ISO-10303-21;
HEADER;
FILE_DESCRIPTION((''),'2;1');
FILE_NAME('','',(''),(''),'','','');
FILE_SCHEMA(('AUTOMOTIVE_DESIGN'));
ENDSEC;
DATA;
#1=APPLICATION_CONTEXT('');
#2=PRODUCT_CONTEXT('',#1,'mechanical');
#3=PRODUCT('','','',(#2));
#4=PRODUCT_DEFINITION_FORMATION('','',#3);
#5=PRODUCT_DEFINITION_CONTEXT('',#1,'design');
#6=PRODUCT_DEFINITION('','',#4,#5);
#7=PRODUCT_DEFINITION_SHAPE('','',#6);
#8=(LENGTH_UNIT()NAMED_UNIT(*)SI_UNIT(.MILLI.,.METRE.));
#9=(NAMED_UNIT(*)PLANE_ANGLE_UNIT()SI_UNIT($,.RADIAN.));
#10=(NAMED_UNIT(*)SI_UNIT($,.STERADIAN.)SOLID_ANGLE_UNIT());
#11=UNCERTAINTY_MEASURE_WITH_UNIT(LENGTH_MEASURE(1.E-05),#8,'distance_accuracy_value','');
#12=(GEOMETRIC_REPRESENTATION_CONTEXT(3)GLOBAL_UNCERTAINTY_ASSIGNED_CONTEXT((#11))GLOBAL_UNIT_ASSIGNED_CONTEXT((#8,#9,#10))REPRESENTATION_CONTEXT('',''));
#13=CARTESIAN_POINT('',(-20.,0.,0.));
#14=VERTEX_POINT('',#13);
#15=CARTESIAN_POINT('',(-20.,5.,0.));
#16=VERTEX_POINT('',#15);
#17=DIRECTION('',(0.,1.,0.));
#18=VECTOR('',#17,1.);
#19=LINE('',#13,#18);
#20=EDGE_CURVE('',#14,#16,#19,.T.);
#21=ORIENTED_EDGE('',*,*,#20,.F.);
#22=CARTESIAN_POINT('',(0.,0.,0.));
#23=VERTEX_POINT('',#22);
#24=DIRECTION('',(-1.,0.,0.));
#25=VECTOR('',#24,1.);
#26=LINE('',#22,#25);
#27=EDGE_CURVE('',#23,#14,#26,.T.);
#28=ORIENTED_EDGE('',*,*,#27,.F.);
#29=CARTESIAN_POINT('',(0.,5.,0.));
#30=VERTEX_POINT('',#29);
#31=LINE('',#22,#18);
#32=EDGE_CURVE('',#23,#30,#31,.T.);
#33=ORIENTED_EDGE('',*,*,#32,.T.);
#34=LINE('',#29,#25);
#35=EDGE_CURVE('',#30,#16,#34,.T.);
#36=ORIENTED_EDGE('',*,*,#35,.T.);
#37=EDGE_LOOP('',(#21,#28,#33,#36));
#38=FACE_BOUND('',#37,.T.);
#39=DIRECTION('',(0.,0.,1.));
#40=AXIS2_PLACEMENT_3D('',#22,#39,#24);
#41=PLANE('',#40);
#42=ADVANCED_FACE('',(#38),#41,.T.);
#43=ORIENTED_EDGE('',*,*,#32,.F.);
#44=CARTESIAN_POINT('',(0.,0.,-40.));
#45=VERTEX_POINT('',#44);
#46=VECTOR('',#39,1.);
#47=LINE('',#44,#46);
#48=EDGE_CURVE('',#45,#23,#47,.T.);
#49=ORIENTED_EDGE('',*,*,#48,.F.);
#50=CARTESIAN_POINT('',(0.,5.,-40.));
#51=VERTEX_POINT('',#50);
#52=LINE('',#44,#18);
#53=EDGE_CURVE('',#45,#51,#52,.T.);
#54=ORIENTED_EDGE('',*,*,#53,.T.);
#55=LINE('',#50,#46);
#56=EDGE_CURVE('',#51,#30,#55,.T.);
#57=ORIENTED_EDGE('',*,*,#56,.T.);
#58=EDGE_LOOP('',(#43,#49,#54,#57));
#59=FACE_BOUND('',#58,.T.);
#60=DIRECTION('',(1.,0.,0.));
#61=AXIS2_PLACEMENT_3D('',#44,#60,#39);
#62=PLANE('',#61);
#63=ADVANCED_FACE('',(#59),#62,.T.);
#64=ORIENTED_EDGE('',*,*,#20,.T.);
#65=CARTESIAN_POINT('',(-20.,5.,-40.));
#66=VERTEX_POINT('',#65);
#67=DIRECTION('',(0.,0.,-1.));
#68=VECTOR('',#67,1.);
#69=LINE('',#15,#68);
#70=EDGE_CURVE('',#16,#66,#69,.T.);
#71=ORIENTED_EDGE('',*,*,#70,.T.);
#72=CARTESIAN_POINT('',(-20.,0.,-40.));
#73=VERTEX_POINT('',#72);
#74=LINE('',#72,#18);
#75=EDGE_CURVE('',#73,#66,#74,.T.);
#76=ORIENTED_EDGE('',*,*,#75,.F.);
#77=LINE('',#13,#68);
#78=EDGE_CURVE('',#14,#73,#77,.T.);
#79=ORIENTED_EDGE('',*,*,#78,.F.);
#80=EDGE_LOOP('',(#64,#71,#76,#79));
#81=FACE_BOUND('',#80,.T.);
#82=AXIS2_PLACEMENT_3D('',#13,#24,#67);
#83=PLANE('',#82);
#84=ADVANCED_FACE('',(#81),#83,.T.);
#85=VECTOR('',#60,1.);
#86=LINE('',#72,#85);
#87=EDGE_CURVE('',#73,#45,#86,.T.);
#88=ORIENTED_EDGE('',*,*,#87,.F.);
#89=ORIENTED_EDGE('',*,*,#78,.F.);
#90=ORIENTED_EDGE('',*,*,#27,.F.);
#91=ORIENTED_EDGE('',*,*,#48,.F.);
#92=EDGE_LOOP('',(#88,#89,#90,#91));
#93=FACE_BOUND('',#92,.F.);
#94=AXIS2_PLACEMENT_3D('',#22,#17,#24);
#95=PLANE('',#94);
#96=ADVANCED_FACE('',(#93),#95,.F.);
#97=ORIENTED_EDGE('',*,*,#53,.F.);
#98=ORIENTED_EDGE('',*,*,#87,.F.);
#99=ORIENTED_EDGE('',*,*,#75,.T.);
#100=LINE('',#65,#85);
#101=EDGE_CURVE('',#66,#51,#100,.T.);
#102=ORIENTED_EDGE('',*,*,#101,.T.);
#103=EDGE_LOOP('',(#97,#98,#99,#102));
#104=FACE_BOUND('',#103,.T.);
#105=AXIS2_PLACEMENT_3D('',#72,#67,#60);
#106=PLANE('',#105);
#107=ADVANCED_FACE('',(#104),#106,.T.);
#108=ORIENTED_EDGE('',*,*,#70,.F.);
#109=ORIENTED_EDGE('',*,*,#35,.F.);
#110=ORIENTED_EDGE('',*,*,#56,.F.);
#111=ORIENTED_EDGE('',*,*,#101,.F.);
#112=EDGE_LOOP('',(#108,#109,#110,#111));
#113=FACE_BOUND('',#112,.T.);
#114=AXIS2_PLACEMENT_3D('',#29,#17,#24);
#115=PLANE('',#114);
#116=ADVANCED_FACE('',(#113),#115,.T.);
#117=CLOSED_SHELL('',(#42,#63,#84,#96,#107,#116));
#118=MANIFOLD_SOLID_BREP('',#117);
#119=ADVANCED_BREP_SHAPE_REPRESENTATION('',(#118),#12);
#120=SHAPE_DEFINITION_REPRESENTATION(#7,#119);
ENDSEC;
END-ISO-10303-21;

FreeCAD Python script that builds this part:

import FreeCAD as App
import Part
import Sketcher

V = App.Vector


def add_polygon(sketch, points):
    """Adds a closed chain of lines whose ends are joined by coincident constraints."""
    first, n = sketch.GeometryCount, len(points)
    for a, b in zip(points, points[1:] + points[:1]):
        sketch.addGeometry(Part.LineSegment(App.Vector(*a, 0), App.Vector(*b, 0)), False)
    for i in range(n):
        sketch.addConstraint(Sketcher.Constraint("Coincident", first + i, 2, first + (i + 1) % n, 1))

doc = App.newDocument("Part")
body = doc.addObject("PartDesign::Body", "Body")

sketch1 = body.newObject("Sketcher::SketchObject", "Sketch")
sketch1.AttachmentSupport = (doc.getObject("XZ_Plane"), [""])
sketch1.MapMode = "FlatFace"
add_polygon(sketch1, [(-20, 0), (0, 0), (0, -40), (-20, -40)])
sketch1.addConstraint(Sketcher.Constraint("Horizontal", 0))
sketch1.addConstraint(Sketcher.Constraint("Vertical", 1))
sketch1.addConstraint(Sketcher.Constraint("Horizontal", 2))
sketch1.addConstraint(Sketcher.Constraint("Vertical", 3))
sketch1.addConstraint(Sketcher.Constraint("Coincident", 0, 2, -1, 1))
sketch1.addConstraint(Sketcher.Constraint("DistanceX", 0, 1, 0, 2, 20.0))
sketch1.addConstraint(Sketcher.Constraint("DistanceY", 1, 2, 1, 1, 40.0))
pad1 = body.newObject("PartDesign::Pad", "Pad")
pad1.Profile = sketch1
pad1.Length = 5
pad1.Reversed = True

doc.recompute()
